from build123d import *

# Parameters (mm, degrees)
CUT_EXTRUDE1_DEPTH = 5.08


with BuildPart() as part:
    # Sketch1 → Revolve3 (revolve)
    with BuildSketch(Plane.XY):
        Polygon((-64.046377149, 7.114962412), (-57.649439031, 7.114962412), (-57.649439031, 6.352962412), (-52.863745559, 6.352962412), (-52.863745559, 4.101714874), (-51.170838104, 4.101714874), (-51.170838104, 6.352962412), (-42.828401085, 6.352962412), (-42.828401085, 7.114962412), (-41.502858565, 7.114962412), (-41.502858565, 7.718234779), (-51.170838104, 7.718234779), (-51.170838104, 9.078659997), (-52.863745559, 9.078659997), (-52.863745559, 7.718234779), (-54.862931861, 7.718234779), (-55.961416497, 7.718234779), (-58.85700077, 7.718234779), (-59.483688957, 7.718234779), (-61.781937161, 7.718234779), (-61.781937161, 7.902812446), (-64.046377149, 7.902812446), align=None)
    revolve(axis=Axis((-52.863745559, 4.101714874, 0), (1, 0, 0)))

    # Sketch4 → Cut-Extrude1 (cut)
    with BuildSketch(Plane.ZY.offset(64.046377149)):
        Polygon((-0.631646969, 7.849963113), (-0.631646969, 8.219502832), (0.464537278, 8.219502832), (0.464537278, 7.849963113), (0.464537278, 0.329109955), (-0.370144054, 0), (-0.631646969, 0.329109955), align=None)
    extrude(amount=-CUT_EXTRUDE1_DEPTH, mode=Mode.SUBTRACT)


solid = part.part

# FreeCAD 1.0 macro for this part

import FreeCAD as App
import Part
import Sketcher

V = App.Vector
Q = App.Units.Quantity

doc = App.newDocument("Part")
body = doc.addObject("PartDesign::Body", "Body")

# Sketch on XY plane
sketch1 = body.newObject("Sketcher::SketchObject", "Sketch")
sketch1.AttachmentSupport = (doc.getObject("XY_Plane"), [""])
sketch1.MapMode = "FlatFace"
sketch1.addGeometry(Part.LineSegment(V(-64.05, 7.11, 0), V(-57.65, 7.11, 0)), False)
sketch1.addGeometry(Part.LineSegment(V(-57.65, 7.11, 0), V(-57.65, 6.35, 0)), False)
sketch1.addGeometry(Part.LineSegment(V(-57.65, 6.35, 0), V(-52.86, 6.35, 0)), False)
sketch1.addGeometry(Part.LineSegment(V(-52.86, 6.35, 0), V(-52.86, 4.1, 0)), False)
sketch1.addGeometry(Part.LineSegment(V(-52.86, 4.1, 0), V(-51.17, 4.1, 0)), False)
sketch1.addGeometry(Part.LineSegment(V(-51.17, 4.1, 0), V(-51.17, 6.35, 0)), False)
sketch1.addGeometry(Part.LineSegment(V(-51.17, 6.35, 0), V(-42.83, 6.35, 0)), False)
sketch1.addGeometry(Part.LineSegment(V(-42.83, 6.35, 0), V(-42.83, 7.11, 0)), False)
sketch1.addGeometry(Part.LineSegment(V(-42.83, 7.11, 0), V(-41.5, 7.11, 0)), False)
sketch1.addGeometry(Part.LineSegment(V(-41.5, 7.11, 0), V(-41.5, 7.72, 0)), False)
sketch1.addGeometry(Part.LineSegment(V(-41.5, 7.72, 0), V(-51.17, 7.72, 0)), False)
sketch1.addGeometry(Part.LineSegment(V(-51.17, 7.72, 0), V(-51.17, 9.08, 0)), False)
sketch1.addGeometry(Part.LineSegment(V(-51.17, 9.08, 0), V(-52.86, 9.08, 0)), False)
sketch1.addGeometry(Part.LineSegment(V(-52.86, 9.08, 0), V(-52.86, 7.72, 0)), False)
sketch1.addGeometry(Part.LineSegment(V(-52.86, 7.72, 0), V(-61.78, 7.72, 0)), False)
sketch1.addGeometry(Part.LineSegment(V(-61.78, 7.72, 0), V(-61.78, 7.9, 0)), False)
sketch1.addGeometry(Part.LineSegment(V(-61.78, 7.9, 0), V(-64.05, 7.9, 0)), False)
sketch1.addGeometry(Part.LineSegment(V(-64.05, 7.9, 0), V(-64.05, 7.11, 0)), False)
sketch1.addGeometry(Part.LineSegment(V(-64.05, 4.1, 0), V(-41.5, 4.1, 0)), True)  # axis
sketch1.addConstraint(Sketcher.Constraint("Coincident", 0, 2, 1, 1))
sketch1.addConstraint(Sketcher.Constraint("Coincident", 1, 2, 2, 1))
sketch1.addConstraint(Sketcher.Constraint("Coincident", 2, 2, 3, 1))
sketch1.addConstraint(Sketcher.Constraint("Coincident", 3, 2, 4, 1))
sketch1.addConstraint(Sketcher.Constraint("Coincident", 4, 2, 5, 1))
sketch1.addConstraint(Sketcher.Constraint("Coincident", 5, 2, 6, 1))
sketch1.addConstraint(Sketcher.Constraint("Coincident", 6, 2, 7, 1))
sketch1.addConstraint(Sketcher.Constraint("Coincident", 7, 2, 8, 1))
sketch1.addConstraint(Sketcher.Constraint("Coincident", 8, 2, 9, 1))
sketch1.addConstraint(Sketcher.Constraint("Coincident", 9, 2, 10, 1))
sketch1.addConstraint(Sketcher.Constraint("Coincident", 10, 2, 11, 1))
sketch1.addConstraint(Sketcher.Constraint("Coincident", 11, 2, 12, 1))
sketch1.addConstraint(Sketcher.Constraint("Coincident", 12, 2, 13, 1))
sketch1.addConstraint(Sketcher.Constraint("Coincident", 13, 2, 14, 1))
sketch1.addConstraint(Sketcher.Constraint("Coincident", 14, 2, 15, 1))
sketch1.addConstraint(Sketcher.Constraint("Coincident", 15, 2, 16, 1))
sketch1.addConstraint(Sketcher.Constraint("Coincident", 16, 2, 17, 1))
sketch1.addConstraint(Sketcher.Constraint("Coincident", 17, 2, 0, 1))
sketch1.addConstraint(Sketcher.Constraint("Horizontal", 0))
sketch1.addConstraint(Sketcher.Constraint("Vertical", 1))
sketch1.addConstraint(Sketcher.Constraint("Horizontal", 2))
sketch1.addConstraint(Sketcher.Constraint("Vertical", 3))
sketch1.addConstraint(Sketcher.Constraint("Horizontal", 4))
sketch1.addConstraint(Sketcher.Constraint("Vertical", 5))
sketch1.addConstraint(Sketcher.Constraint("Horizontal", 6))
sketch1.addConstraint(Sketcher.Constraint("Vertical", 7))
sketch1.addConstraint(Sketcher.Constraint("Horizontal", 8))
sketch1.addConstraint(Sketcher.Constraint("Vertical", 9))
sketch1.addConstraint(Sketcher.Constraint("Horizontal", 10))
sketch1.addConstraint(Sketcher.Constraint("Vertical", 11))
sketch1.addConstraint(Sketcher.Constraint("Horizontal", 12))
sketch1.addConstraint(Sketcher.Constraint("Vertical", 13))
sketch1.addConstraint(Sketcher.Constraint("Horizontal", 14))
sketch1.addConstraint(Sketcher.Constraint("Vertical", 15))
sketch1.addConstraint(Sketcher.Constraint("Horizontal", 16))
sketch1.addConstraint(Sketcher.Constraint("Vertical", 17))
sketch1.addConstraint(Sketcher.Constraint("Horizontal", 18))
sketch1.addConstraint(Sketcher.Constraint("Horizontal", 2, 2, 5, 2))
sketch1.addConstraint(Sketcher.Constraint("Horizontal", 0, 2, 7, 2))
sketch1.addConstraint(Sketcher.Constraint("Horizontal", 10, 2, 13, 2))
sketch1.addConstraint(Sketcher.Constraint("Horizontal", 4, 2, 18, 1))
sketch1.addConstraint(Sketcher.Constraint("Vertical", 5, 2, 10, 2))
sketch1.addConstraint(Sketcher.Constraint("Vertical", 3, 2, 12, 2))
sketch1.addConstraint(Sketcher.Constraint("Vertical", 17, 2, 18, 1))
sketch1.addConstraint(Sketcher.Constraint("Vertical", 9, 2, 18, 2))
sketch1.addConstraint(Sketcher.Constraint("DistanceY", 1, 2, 1, 1, Q("0.03 in")))
sketch1.addConstraint(Sketcher.Constraint("DistanceX", 4, 2, -1, 1, Q("2.0145999 in")))
sketch1.addConstraint(Sketcher.Constraint("DistanceX", 0, 1, 0, 2, Q("6.396938 mm")))
sketch1.addConstraint(Sketcher.Constraint("DistanceX", 10, 2, 10, 1, Q("9.66798 mm")))
sketch1.addConstraint(Sketcher.Constraint("DistanceX", 14, 2, 14, 1, Q("8.918192 mm")))
sketch1.addConstraint(Sketcher.Constraint("DistanceX", 16, 2, 16, 1, Q("2.26444 mm")))
sketch1.addConstraint(Sketcher.Constraint("DistanceX", 18, 1, 18, 2, Q("22.543519 mm")))
sketch1.addConstraint(Sketcher.Constraint("DistanceY", 17, 2, 17, 1, Q("0.78785 mm")))
sketch1.addConstraint(Sketcher.Constraint("DistanceX", 6, 2, -1, 1, Q("42.828401 mm")))
sketch1.addConstraint(Sketcher.Constraint("DistanceY", 3, 2, 3, 1, Q("2.251248 mm")))
sketch1.addConstraint(Sketcher.Constraint("DistanceY", 9, 1, 9, 2, Q("0.603272 mm")))
sketch1.addConstraint(Sketcher.Constraint("DistanceY", 11, 1, 11, 2, Q("1.360425 mm")))
sketch1.addConstraint(Sketcher.Constraint("DistanceY", -1, 1, 11, 2, Q("9.07866 mm")))
revolution = body.newObject("PartDesign::Revolution", "Revolution")
revolution.Profile = sketch1
revolution.ReferenceAxis = (sketch1, ["Axis0"])
revolution.Angle = 360

# Sketch on YZ plane
sketch2 = body.newObject("Sketcher::SketchObject", "Sketch001")
sketch2.AttachmentSupport = (doc.getObject("YZ_Plane"), [""])
sketch2.MapMode = "FlatFace"
sketch2.AttachmentOffset = App.Placement(V(0, 0, -64.046377), App.Rotation())
sketch2.addGeometry(Part.LineSegment(V(8.22, -0.63, 0), V(0.33, -0.63, 0)), False)
sketch2.addGeometry(Part.LineSegment(V(0.33, -0.63, 0), V(0, -0.37, 0)), False)
sketch2.addGeometry(Part.LineSegment(V(0, -0.37, 0), V(0.33, 0.46, 0)), False)
sketch2.addGeometry(Part.LineSegment(V(0.33, 0.46, 0), V(8.22, 0.46, 0)), False)
sketch2.addGeometry(Part.LineSegment(V(8.22, 0.46, 0), V(8.22, -0.63, 0)), False)
sketch2.addConstraint(Sketcher.Constraint("Coincident", 0, 2, 1, 1))
sketch2.addConstraint(Sketcher.Constraint("Coincident", 1, 2, 2, 1))
sketch2.addConstraint(Sketcher.Constraint("Coincident", 2, 2, 3, 1))
sketch2.addConstraint(Sketcher.Constraint("Coincident", 3, 2, 4, 1))
sketch2.addConstraint(Sketcher.Constraint("Coincident", 4, 2, 0, 1))
sketch2.addConstraint(Sketcher.Constraint("Horizontal", 0))
sketch2.addConstraint(Sketcher.Constraint("Horizontal", 3))
sketch2.addConstraint(Sketcher.Constraint("Vertical", 4))
sketch2.addConstraint(Sketcher.Constraint("PointOnObject", 1, 2, -2))
sketch2.addConstraint(Sketcher.Constraint("Vertical", 0, 2, 2, 2))
sketch2.addConstraint(Sketcher.Constraint("Distance", 2, Q("0.897221 mm")))
sketch2.addConstraint(Sketcher.Constraint("DistanceX", 0, 2, 0, 1, Q("7.890393 mm")))
sketch2.addConstraint(Sketcher.Constraint("DistanceY", 4, 2, 4, 1, Q("1.096184 mm")))
sketch2.addConstraint(Sketcher.Constraint("DistanceX", -1, 1, 0, 2, Q("0.32911 mm")))
sketch2.addConstraint(Sketcher.Constraint("DistanceY", 0, 2, -1, 1, Q("0.631647 mm")))
pocket1 = body.newObject("PartDesign::Pocket", "Pocket")
pocket1.Profile = sketch2
pocket1.Length = Q("0.2 in")
pocket1.Reversed = True

doc.recompute()
